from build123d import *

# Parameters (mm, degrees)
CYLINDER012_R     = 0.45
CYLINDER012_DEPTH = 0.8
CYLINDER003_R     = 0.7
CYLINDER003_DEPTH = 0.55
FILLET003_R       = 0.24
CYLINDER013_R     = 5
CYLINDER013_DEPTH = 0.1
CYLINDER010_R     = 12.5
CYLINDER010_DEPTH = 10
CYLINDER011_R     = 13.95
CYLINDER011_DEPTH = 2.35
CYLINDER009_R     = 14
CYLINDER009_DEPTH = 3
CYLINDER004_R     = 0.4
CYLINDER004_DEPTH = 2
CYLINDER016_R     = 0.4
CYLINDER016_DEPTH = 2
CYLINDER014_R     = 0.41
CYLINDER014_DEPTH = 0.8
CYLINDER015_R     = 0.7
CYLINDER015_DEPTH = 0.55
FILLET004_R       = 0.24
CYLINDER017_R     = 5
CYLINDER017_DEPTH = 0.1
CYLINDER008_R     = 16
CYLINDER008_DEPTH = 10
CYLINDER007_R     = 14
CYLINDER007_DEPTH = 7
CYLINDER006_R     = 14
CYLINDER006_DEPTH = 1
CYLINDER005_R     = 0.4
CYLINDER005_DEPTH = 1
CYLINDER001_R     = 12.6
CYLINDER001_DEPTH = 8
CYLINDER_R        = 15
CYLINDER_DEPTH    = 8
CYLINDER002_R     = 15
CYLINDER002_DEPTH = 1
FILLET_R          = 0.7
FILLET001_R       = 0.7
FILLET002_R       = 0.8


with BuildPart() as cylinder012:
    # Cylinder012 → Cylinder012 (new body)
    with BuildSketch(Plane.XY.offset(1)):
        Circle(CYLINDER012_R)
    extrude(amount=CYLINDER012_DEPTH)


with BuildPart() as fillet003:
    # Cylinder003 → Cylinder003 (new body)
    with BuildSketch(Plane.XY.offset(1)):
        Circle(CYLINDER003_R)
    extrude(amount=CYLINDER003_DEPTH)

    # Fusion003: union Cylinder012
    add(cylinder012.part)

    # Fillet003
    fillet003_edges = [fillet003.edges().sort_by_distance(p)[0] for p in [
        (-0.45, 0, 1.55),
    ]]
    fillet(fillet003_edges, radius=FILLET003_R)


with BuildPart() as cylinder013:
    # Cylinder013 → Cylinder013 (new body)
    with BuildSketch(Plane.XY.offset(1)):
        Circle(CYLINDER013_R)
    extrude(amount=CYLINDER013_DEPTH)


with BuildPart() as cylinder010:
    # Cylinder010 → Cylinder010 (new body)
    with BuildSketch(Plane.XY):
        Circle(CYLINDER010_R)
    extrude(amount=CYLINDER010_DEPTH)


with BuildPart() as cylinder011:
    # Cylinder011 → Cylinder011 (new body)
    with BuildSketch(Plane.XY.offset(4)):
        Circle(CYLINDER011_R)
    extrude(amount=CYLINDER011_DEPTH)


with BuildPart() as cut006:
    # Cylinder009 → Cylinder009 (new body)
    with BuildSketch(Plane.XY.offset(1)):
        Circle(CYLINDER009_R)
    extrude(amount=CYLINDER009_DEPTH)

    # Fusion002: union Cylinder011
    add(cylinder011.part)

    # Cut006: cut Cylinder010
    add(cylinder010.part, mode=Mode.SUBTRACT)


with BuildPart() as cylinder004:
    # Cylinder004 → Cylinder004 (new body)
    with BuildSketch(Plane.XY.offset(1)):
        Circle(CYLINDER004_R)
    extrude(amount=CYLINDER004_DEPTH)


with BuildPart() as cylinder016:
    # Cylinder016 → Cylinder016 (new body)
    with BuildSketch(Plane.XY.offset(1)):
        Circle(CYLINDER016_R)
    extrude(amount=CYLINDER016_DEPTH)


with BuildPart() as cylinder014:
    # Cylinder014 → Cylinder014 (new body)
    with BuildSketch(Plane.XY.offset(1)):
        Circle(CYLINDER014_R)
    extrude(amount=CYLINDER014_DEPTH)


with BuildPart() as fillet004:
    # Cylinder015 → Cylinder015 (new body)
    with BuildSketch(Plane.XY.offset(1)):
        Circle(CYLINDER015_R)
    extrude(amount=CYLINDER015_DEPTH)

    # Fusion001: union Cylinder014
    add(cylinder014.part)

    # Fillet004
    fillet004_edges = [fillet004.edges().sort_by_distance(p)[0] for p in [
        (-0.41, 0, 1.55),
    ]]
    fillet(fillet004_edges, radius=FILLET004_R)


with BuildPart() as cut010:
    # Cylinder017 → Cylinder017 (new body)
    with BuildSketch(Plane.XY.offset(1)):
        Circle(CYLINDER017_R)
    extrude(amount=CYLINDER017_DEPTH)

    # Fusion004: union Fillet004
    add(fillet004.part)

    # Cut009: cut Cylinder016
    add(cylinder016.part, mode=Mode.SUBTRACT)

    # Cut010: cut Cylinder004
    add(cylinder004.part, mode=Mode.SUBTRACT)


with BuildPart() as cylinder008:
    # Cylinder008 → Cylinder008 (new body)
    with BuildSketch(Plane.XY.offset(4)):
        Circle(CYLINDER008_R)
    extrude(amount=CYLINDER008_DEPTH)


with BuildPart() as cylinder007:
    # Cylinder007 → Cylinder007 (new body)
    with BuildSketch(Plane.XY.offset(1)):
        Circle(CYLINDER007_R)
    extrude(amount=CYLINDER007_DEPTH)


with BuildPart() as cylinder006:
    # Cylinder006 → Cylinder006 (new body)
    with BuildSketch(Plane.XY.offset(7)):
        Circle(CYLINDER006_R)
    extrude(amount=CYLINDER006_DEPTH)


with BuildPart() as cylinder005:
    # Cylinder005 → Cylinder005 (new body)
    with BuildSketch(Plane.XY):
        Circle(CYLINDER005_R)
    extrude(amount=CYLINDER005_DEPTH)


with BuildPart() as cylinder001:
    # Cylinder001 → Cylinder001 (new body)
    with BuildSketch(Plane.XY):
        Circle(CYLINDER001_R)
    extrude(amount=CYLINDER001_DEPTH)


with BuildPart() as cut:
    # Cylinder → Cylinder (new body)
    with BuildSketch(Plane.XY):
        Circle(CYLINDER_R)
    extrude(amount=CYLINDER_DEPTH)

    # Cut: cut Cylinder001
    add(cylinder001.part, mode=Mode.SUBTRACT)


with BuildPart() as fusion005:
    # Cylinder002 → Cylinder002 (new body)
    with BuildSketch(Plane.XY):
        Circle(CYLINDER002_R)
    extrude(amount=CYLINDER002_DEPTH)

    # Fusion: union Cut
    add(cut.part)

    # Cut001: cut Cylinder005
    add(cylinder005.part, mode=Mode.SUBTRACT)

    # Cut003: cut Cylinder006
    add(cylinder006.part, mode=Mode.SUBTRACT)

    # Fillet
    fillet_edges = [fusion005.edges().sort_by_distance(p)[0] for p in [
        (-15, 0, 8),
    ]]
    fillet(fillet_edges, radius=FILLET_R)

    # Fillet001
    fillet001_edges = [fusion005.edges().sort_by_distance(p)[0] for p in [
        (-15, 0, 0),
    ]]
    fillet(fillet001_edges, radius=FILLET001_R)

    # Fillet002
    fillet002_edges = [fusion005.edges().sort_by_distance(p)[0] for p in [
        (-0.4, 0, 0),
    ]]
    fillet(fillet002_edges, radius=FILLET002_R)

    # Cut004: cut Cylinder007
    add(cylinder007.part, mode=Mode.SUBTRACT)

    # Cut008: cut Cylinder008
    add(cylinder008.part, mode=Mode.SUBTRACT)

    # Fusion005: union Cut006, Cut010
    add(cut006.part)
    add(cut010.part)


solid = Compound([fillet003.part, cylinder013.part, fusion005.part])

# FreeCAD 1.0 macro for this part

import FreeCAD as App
import Part
import Sketcher
from FreeCAD import Vector


def edges_at(feature, points):
    """Names of the edges that pass closest to the given points."""
    edges = feature.Shape.Edges
    near = lambda p: min(range(len(edges)), key=lambda i: edges[i].distToShape(Part.Vertex(*p))[0])
    return sorted({f"Edge{near(p) + 1}" for p in points})

doc = App.newDocument("Part")
body = doc.addObject("PartDesign::Body", "Body")

# Sketch on XY plane
sketch1 = body.newObject("Sketcher::SketchObject", "Sketch")
sketch1.AttachmentSupport = (doc.getObject("XY_Plane"), [""])
sketch1.MapMode = "FlatFace"
sketch1.AttachmentOffset = App.Placement(Vector(0, 0, 1), App.Rotation())
sketch1.addGeometry(Part.Circle(Vector(0, 0, 0), Vector(0, 0, 1), 0.45), False)
sketch1.addConstraint([
    Sketcher.Constraint("Coincident", 0, 3, -1, 1),
    Sketcher.Constraint("Diameter", 0, 0.9),
])
pad1 = body.newObject("PartDesign::Pad", "Pad")
pad1.Profile = sketch1
pad1.Length = 0.8
body2 = doc.addObject("PartDesign::Body", "Body001")

# Sketch on XY plane
sketch2 = body2.newObject("Sketcher::SketchObject", "Sketch001")
sketch2.AttachmentSupport = (doc.getObject("XY_Plane001"), [""])
sketch2.MapMode = "FlatFace"
sketch2.AttachmentOffset = App.Placement(Vector(0, 0, 1), App.Rotation())
sketch2.addGeometry(Part.Circle(Vector(0, 0, 0), Vector(0, 0, 1), 0.7), False)
sketch2.addConstraint([
    Sketcher.Constraint("Coincident", 0, 3, -1, 1),
    Sketcher.Constraint("Diameter", 0, 1.4),
])
pad2 = body2.newObject("PartDesign::Pad", "Pad001")
pad2.Profile = sketch2
pad2.Length = 0.55
doc.recompute()

boolean = body2.newObject("PartDesign::Boolean", "Boolean")
boolean.Type = "Fuse"
boolean.addObjects([body])
doc.recompute()

fillet = body2.newObject("PartDesign::Fillet", "Fillet")
fillet.Base = (boolean, edges_at(boolean, [(-0.45, 0, 1.55)]))
fillet.Radius = 0.24
body3 = doc.addObject("PartDesign::Body", "Body002")

# Sketch on XY plane
sketch3 = body3.newObject("Sketcher::SketchObject", "Sketch002")
sketch3.AttachmentSupport = (doc.getObject("XY_Plane002"), [""])
sketch3.MapMode = "FlatFace"
sketch3.AttachmentOffset = App.Placement(Vector(0, 0, 1), App.Rotation())
sketch3.addGeometry(Part.Circle(Vector(0, 0, 0), Vector(0, 0, 1), 5), False)
sketch3.addConstraint([
    Sketcher.Constraint("Coincident", 0, 3, -1, 1),
    Sketcher.Constraint("Diameter", 0, 10.0),
])
pad3 = body3.newObject("PartDesign::Pad", "Pad002")
pad3.Profile = sketch3
pad3.Length = 0.1
body4 = doc.addObject("PartDesign::Body", "Body003")

# Sketch on XY plane
sketch4 = body4.newObject("Sketcher::SketchObject", "Sketch003")
sketch4.AttachmentSupport = (doc.getObject("XY_Plane003"), [""])
sketch4.MapMode = "FlatFace"
sketch4.addGeometry(Part.Circle(Vector(0, 0, 0), Vector(0, 0, 1), 12), False)
sketch4.addConstraint([
    Sketcher.Constraint("Coincident", 0, 3, -1, 1),
    Sketcher.Constraint("Diameter", 0, 25.0),
])
pad4 = body4.newObject("PartDesign::Pad", "Pad003")
pad4.Profile = sketch4
pad4.Length = 10
body5 = doc.addObject("PartDesign::Body", "Body004")

# Sketch on XY plane
sketch5 = body5.newObject("Sketcher::SketchObject", "Sketch004")
sketch5.AttachmentSupport = (doc.getObject("XY_Plane004"), [""])
sketch5.MapMode = "FlatFace"
sketch5.AttachmentOffset = App.Placement(Vector(0, 0, 4), App.Rotation())
sketch5.addGeometry(Part.Circle(Vector(0, 0, 0), Vector(0, 0, 1), 14), False)
sketch5.addConstraint([
    Sketcher.Constraint("Coincident", 0, 3, -1, 1),
    Sketcher.Constraint("Diameter", 0, 27.9),
])
pad5 = body5.newObject("PartDesign::Pad", "Pad004")
pad5.Profile = sketch5
pad5.Length = 2.35
body6 = doc.addObject("PartDesign::Body", "Body005")

# Sketch on XY plane
sketch6 = body6.newObject("Sketcher::SketchObject", "Sketch005")
sketch6.AttachmentSupport = (doc.getObject("XY_Plane005"), [""])
sketch6.MapMode = "FlatFace"
sketch6.AttachmentOffset = App.Placement(Vector(0, 0, 1), App.Rotation())
sketch6.addGeometry(Part.Circle(Vector(0, 0, 0), Vector(0, 0, 1), 14), False)
sketch6.addConstraint([
    Sketcher.Constraint("Coincident", 0, 3, -1, 1),
    Sketcher.Constraint("Diameter", 0, 28.0),
])
pad6 = body6.newObject("PartDesign::Pad", "Pad005")
pad6.Profile = sketch6
pad6.Length = 3
doc.recompute()

boolean2 = body6.newObject("PartDesign::Boolean", "Boolean001")
boolean2.Type = "Fuse"
boolean2.addObjects([body5])
doc.recompute()

boolean3 = body6.newObject("PartDesign::Boolean", "Boolean002")
boolean3.Type = "Cut"
boolean3.addObjects([body4])
body7 = doc.addObject("PartDesign::Body", "Body006")

# Sketch on XY plane
sketch7 = body7.newObject("Sketcher::SketchObject", "Sketch006")
sketch7.AttachmentSupport = (doc.getObject("XY_Plane006"), [""])
sketch7.MapMode = "FlatFace"
sketch7.AttachmentOffset = App.Placement(Vector(0, 0, 1), App.Rotation())
sketch7.addGeometry(Part.Circle(Vector(0, 0, 0), Vector(0, 0, 1), 0.4), False)
sketch7.addConstraint([
    Sketcher.Constraint("Coincident", 0, 3, -1, 1),
    Sketcher.Constraint("Diameter", 0, 0.8),
])
pad7 = body7.newObject("PartDesign::Pad", "Pad006")
pad7.Profile = sketch7
pad7.Length = 2
body8 = doc.addObject("PartDesign::Body", "Body007")

# Sketch on XY plane
sketch8 = body8.newObject("Sketcher::SketchObject", "Sketch007")
sketch8.AttachmentSupport = (doc.getObject("XY_Plane007"), [""])
sketch8.MapMode = "FlatFace"
sketch8.AttachmentOffset = App.Placement(Vector(0, 0, 1), App.Rotation())
sketch8.addGeometry(Part.Circle(Vector(0, 0, 0), Vector(0, 0, 1), 0.4), False)
sketch8.addConstraint([
    Sketcher.Constraint("Coincident", 0, 3, -1, 1),
    Sketcher.Constraint("Diameter", 0, 0.8),
])
pad8 = body8.newObject("PartDesign::Pad", "Pad007")
pad8.Profile = sketch8
pad8.Length = 2
body9 = doc.addObject("PartDesign::Body", "Body008")

# Sketch on XY plane
sketch9 = body9.newObject("Sketcher::SketchObject", "Sketch008")
sketch9.AttachmentSupport = (doc.getObject("XY_Plane008"), [""])
sketch9.MapMode = "FlatFace"
sketch9.AttachmentOffset = App.Placement(Vector(0, 0, 1), App.Rotation())
sketch9.addGeometry(Part.Circle(Vector(0, 0, 0), Vector(0, 0, 1), 0.41), False)
sketch9.addConstraint([
    Sketcher.Constraint("Coincident", 0, 3, -1, 1),
    Sketcher.Constraint("Diameter", 0, 0.82),
])
pad9 = body9.newObject("PartDesign::Pad", "Pad008")
pad9.Profile = sketch9
pad9.Length = 0.8
body10 = doc.addObject("PartDesign::Body", "Body009")

# Sketch on XY plane
sketch10 = body10.newObject("Sketcher::SketchObject", "Sketch009")
sketch10.AttachmentSupport = (doc.getObject("XY_Plane009"), [""])
sketch10.MapMode = "FlatFace"
sketch10.AttachmentOffset = App.Placement(Vector(0, 0, 1), App.Rotation())
sketch10.addGeometry(Part.Circle(Vector(0, 0, 0), Vector(0, 0, 1), 0.7), False)
sketch10.addConstraint([
    Sketcher.Constraint("Coincident", 0, 3, -1, 1),
    Sketcher.Constraint("Diameter", 0, 1.4),
])
pad10 = body10.newObject("PartDesign::Pad", "Pad009")
pad10.Profile = sketch10
pad10.Length = 0.55
doc.recompute()

boolean4 = body10.newObject("PartDesign::Boolean", "Boolean003")
boolean4.Type = "Fuse"
boolean4.addObjects([body9])
doc.recompute()

fillet2 = body10.newObject("PartDesign::Fillet", "Fillet001")
fillet2.Base = (boolean4, edges_at(boolean4, [(-0.41, 0, 1.55)]))
fillet2.Radius = 0.24
body11 = doc.addObject("PartDesign::Body", "Body010")

# Sketch on XY plane
sketch11 = body11.newObject("Sketcher::SketchObject", "Sketch010")
sketch11.AttachmentSupport = (doc.getObject("XY_Plane010"), [""])
sketch11.MapMode = "FlatFace"
sketch11.AttachmentOffset = App.Placement(Vector(0, 0, 1), App.Rotation())
sketch11.addGeometry(Part.Circle(Vector(0, 0, 0), Vector(0, 0, 1), 5), False)
sketch11.addConstraint([
    Sketcher.Constraint("Coincident", 0, 3, -1, 1),
    Sketcher.Constraint("Diameter", 0, 10.0),
])
pad11 = body11.newObject("PartDesign::Pad", "Pad010")
pad11.Profile = sketch11
pad11.Length = 0.1
doc.recompute()

boolean5 = body11.newObject("PartDesign::Boolean", "Boolean004")
boolean5.Type = "Fuse"
boolean5.addObjects([body10])
doc.recompute()

boolean6 = body11.newObject("PartDesign::Boolean", "Boolean005")
boolean6.Type = "Cut"
boolean6.addObjects([body8])
doc.recompute()

boolean7 = body11.newObject("PartDesign::Boolean", "Boolean006")
boolean7.Type = "Cut"
boolean7.addObjects([body7])
body12 = doc.addObject("PartDesign::Body", "Body011")

# Sketch on XY plane
sketch12 = body12.newObject("Sketcher::SketchObject", "Sketch011")
sketch12.AttachmentSupport = (doc.getObject("XY_Plane011"), [""])
sketch12.MapMode = "FlatFace"
sketch12.AttachmentOffset = App.Placement(Vector(0, 0, 4), App.Rotation())
sketch12.addGeometry(Part.Circle(Vector(0, 0, 0), Vector(0, 0, 1), 16), False)
sketch12.addConstraint([
    Sketcher.Constraint("Coincident", 0, 3, -1, 1),
    Sketcher.Constraint("Diameter", 0, 32.0),
])
pad12 = body12.newObject("PartDesign::Pad", "Pad011")
pad12.Profile = sketch12
pad12.Length = 10
body13 = doc.addObject("PartDesign::Body", "Body012")

# Sketch on XY plane
sketch13 = body13.newObject("Sketcher::SketchObject", "Sketch012")
sketch13.AttachmentSupport = (doc.getObject("XY_Plane012"), [""])
sketch13.MapMode = "FlatFace"
sketch13.AttachmentOffset = App.Placement(Vector(0, 0, 1), App.Rotation())
sketch13.addGeometry(Part.Circle(Vector(0, 0, 0), Vector(0, 0, 1), 14), False)
sketch13.addConstraint([
    Sketcher.Constraint("Coincident", 0, 3, -1, 1),
    Sketcher.Constraint("Diameter", 0, 28.0),
])
pad13 = body13.newObject("PartDesign::Pad", "Pad012")
pad13.Profile = sketch13
pad13.Length = 7
body14 = doc.addObject("PartDesign::Body", "Body013")

# Sketch on XY plane
sketch14 = body14.newObject("Sketcher::SketchObject", "Sketch013")
sketch14.AttachmentSupport = (doc.getObject("XY_Plane013"), [""])
sketch14.MapMode = "FlatFace"
sketch14.AttachmentOffset = App.Placement(Vector(0, 0, 7), App.Rotation())
sketch14.addGeometry(Part.Circle(Vector(0, 0, 0), Vector(0, 0, 1), 14), False)
sketch14.addConstraint([
    Sketcher.Constraint("Coincident", 0, 3, -1, 1),
    Sketcher.Constraint("Diameter", 0, 28.0),
])
pad14 = body14.newObject("PartDesign::Pad", "Pad013")
pad14.Profile = sketch14
pad14.Length = 1
body15 = doc.addObject("PartDesign::Body", "Body014")

# Sketch on XY plane
sketch15 = body15.newObject("Sketcher::SketchObject", "Sketch014")
sketch15.AttachmentSupport = (doc.getObject("XY_Plane014"), [""])
sketch15.MapMode = "FlatFace"
sketch15.addGeometry(Part.Circle(Vector(0, 0, 0), Vector(0, 0, 1), 0.4), False)
sketch15.addConstraint([
    Sketcher.Constraint("Coincident", 0, 3, -1, 1),
    Sketcher.Constraint("Diameter", 0, 0.8),
])
pad15 = body15.newObject("PartDesign::Pad", "Pad014")
pad15.Profile = sketch15
pad15.Length = 1
body16 = doc.addObject("PartDesign::Body", "Body015")

# Sketch on XY plane
sketch16 = body16.newObject("Sketcher::SketchObject", "Sketch015")
sketch16.AttachmentSupport = (doc.getObject("XY_Plane015"), [""])
sketch16.MapMode = "FlatFace"
sketch16.addGeometry(Part.Circle(Vector(0, 0, 0), Vector(0, 0, 1), 13), False)
sketch16.addConstraint([
    Sketcher.Constraint("Coincident", 0, 3, -1, 1),
    Sketcher.Constraint("Diameter", 0, 25.2),
])
pad16 = body16.newObject("PartDesign::Pad", "Pad015")
pad16.Profile = sketch16
pad16.Length = 8
body17 = doc.addObject("PartDesign::Body", "Body016")

# Sketch on XY plane
sketch17 = body17.newObject("Sketcher::SketchObject", "Sketch016")
sketch17.AttachmentSupport = (doc.getObject("XY_Plane016"), [""])
sketch17.MapMode = "FlatFace"
sketch17.addGeometry(Part.Circle(Vector(0, 0, 0), Vector(0, 0, 1), 15), False)
sketch17.addConstraint([
    Sketcher.Constraint("Coincident", 0, 3, -1, 1),
    Sketcher.Constraint("Diameter", 0, 30.0),
])
pad17 = body17.newObject("PartDesign::Pad", "Pad016")
pad17.Profile = sketch17
pad17.Length = 8
doc.recompute()

boolean8 = body17.newObject("PartDesign::Boolean", "Boolean007")
boolean8.Type = "Cut"
boolean8.addObjects([body16])
body18 = doc.addObject("PartDesign::Body", "Body017")

# Sketch on XY plane
sketch18 = body18.newObject("Sketcher::SketchObject", "Sketch017")
sketch18.AttachmentSupport = (doc.getObject("XY_Plane017"), [""])
sketch18.MapMode = "FlatFace"
sketch18.addGeometry(Part.Circle(Vector(0, 0, 0), Vector(0, 0, 1), 15), False)
sketch18.addConstraint([
    Sketcher.Constraint("Coincident", 0, 3, -1, 1),
    Sketcher.Constraint("Diameter", 0, 30.0),
])
pad18 = body18.newObject("PartDesign::Pad", "Pad017")
pad18.Profile = sketch18
pad18.Length = 1
doc.recompute()

boolean9 = body18.newObject("PartDesign::Boolean", "Boolean008")
boolean9.Type = "Fuse"
boolean9.addObjects([body17])
doc.recompute()

boolean10 = body18.newObject("PartDesign::Boolean", "Boolean009")
boolean10.Type = "Cut"
boolean10.addObjects([body15])
doc.recompute()

boolean11 = body18.newObject("PartDesign::Boolean", "Boolean010")
boolean11.Type = "Cut"
boolean11.addObjects([body14])
doc.recompute()

fillet3 = body18.newObject("PartDesign::Fillet", "Fillet002")
fillet3.Base = (boolean11, edges_at(boolean11, [(-15, 0, 8)]))
fillet3.Radius = 0.7
doc.recompute()

fillet4 = body18.newObject("PartDesign::Fillet", "Fillet003")
fillet4.Base = (fillet3, edges_at(fillet3, [(-15, 0, 0)]))
fillet4.Radius = 0.7
doc.recompute()

fillet5 = body18.newObject("PartDesign::Fillet", "Fillet004")
fillet5.Base = (fillet4, edges_at(fillet4, [(-0.4, 0, 0)]))
fillet5.Radius = 0.8
doc.recompute()

boolean12 = body18.newObject("PartDesign::Boolean", "Boolean011")
boolean12.Type = "Cut"
boolean12.addObjects([body13])
doc.recompute()

boolean13 = body18.newObject("PartDesign::Boolean", "Boolean012")
boolean13.Type = "Cut"
boolean13.addObjects([body12])
doc.recompute()

boolean14 = body18.newObject("PartDesign::Boolean", "Boolean013")
boolean14.Type = "Fuse"
boolean14.addObjects([body6])
doc.recompute()

boolean15 = body18.newObject("PartDesign::Boolean", "Boolean014")
boolean15.Type = "Fuse"
boolean15.addObjects([body11])

doc.recompute()
